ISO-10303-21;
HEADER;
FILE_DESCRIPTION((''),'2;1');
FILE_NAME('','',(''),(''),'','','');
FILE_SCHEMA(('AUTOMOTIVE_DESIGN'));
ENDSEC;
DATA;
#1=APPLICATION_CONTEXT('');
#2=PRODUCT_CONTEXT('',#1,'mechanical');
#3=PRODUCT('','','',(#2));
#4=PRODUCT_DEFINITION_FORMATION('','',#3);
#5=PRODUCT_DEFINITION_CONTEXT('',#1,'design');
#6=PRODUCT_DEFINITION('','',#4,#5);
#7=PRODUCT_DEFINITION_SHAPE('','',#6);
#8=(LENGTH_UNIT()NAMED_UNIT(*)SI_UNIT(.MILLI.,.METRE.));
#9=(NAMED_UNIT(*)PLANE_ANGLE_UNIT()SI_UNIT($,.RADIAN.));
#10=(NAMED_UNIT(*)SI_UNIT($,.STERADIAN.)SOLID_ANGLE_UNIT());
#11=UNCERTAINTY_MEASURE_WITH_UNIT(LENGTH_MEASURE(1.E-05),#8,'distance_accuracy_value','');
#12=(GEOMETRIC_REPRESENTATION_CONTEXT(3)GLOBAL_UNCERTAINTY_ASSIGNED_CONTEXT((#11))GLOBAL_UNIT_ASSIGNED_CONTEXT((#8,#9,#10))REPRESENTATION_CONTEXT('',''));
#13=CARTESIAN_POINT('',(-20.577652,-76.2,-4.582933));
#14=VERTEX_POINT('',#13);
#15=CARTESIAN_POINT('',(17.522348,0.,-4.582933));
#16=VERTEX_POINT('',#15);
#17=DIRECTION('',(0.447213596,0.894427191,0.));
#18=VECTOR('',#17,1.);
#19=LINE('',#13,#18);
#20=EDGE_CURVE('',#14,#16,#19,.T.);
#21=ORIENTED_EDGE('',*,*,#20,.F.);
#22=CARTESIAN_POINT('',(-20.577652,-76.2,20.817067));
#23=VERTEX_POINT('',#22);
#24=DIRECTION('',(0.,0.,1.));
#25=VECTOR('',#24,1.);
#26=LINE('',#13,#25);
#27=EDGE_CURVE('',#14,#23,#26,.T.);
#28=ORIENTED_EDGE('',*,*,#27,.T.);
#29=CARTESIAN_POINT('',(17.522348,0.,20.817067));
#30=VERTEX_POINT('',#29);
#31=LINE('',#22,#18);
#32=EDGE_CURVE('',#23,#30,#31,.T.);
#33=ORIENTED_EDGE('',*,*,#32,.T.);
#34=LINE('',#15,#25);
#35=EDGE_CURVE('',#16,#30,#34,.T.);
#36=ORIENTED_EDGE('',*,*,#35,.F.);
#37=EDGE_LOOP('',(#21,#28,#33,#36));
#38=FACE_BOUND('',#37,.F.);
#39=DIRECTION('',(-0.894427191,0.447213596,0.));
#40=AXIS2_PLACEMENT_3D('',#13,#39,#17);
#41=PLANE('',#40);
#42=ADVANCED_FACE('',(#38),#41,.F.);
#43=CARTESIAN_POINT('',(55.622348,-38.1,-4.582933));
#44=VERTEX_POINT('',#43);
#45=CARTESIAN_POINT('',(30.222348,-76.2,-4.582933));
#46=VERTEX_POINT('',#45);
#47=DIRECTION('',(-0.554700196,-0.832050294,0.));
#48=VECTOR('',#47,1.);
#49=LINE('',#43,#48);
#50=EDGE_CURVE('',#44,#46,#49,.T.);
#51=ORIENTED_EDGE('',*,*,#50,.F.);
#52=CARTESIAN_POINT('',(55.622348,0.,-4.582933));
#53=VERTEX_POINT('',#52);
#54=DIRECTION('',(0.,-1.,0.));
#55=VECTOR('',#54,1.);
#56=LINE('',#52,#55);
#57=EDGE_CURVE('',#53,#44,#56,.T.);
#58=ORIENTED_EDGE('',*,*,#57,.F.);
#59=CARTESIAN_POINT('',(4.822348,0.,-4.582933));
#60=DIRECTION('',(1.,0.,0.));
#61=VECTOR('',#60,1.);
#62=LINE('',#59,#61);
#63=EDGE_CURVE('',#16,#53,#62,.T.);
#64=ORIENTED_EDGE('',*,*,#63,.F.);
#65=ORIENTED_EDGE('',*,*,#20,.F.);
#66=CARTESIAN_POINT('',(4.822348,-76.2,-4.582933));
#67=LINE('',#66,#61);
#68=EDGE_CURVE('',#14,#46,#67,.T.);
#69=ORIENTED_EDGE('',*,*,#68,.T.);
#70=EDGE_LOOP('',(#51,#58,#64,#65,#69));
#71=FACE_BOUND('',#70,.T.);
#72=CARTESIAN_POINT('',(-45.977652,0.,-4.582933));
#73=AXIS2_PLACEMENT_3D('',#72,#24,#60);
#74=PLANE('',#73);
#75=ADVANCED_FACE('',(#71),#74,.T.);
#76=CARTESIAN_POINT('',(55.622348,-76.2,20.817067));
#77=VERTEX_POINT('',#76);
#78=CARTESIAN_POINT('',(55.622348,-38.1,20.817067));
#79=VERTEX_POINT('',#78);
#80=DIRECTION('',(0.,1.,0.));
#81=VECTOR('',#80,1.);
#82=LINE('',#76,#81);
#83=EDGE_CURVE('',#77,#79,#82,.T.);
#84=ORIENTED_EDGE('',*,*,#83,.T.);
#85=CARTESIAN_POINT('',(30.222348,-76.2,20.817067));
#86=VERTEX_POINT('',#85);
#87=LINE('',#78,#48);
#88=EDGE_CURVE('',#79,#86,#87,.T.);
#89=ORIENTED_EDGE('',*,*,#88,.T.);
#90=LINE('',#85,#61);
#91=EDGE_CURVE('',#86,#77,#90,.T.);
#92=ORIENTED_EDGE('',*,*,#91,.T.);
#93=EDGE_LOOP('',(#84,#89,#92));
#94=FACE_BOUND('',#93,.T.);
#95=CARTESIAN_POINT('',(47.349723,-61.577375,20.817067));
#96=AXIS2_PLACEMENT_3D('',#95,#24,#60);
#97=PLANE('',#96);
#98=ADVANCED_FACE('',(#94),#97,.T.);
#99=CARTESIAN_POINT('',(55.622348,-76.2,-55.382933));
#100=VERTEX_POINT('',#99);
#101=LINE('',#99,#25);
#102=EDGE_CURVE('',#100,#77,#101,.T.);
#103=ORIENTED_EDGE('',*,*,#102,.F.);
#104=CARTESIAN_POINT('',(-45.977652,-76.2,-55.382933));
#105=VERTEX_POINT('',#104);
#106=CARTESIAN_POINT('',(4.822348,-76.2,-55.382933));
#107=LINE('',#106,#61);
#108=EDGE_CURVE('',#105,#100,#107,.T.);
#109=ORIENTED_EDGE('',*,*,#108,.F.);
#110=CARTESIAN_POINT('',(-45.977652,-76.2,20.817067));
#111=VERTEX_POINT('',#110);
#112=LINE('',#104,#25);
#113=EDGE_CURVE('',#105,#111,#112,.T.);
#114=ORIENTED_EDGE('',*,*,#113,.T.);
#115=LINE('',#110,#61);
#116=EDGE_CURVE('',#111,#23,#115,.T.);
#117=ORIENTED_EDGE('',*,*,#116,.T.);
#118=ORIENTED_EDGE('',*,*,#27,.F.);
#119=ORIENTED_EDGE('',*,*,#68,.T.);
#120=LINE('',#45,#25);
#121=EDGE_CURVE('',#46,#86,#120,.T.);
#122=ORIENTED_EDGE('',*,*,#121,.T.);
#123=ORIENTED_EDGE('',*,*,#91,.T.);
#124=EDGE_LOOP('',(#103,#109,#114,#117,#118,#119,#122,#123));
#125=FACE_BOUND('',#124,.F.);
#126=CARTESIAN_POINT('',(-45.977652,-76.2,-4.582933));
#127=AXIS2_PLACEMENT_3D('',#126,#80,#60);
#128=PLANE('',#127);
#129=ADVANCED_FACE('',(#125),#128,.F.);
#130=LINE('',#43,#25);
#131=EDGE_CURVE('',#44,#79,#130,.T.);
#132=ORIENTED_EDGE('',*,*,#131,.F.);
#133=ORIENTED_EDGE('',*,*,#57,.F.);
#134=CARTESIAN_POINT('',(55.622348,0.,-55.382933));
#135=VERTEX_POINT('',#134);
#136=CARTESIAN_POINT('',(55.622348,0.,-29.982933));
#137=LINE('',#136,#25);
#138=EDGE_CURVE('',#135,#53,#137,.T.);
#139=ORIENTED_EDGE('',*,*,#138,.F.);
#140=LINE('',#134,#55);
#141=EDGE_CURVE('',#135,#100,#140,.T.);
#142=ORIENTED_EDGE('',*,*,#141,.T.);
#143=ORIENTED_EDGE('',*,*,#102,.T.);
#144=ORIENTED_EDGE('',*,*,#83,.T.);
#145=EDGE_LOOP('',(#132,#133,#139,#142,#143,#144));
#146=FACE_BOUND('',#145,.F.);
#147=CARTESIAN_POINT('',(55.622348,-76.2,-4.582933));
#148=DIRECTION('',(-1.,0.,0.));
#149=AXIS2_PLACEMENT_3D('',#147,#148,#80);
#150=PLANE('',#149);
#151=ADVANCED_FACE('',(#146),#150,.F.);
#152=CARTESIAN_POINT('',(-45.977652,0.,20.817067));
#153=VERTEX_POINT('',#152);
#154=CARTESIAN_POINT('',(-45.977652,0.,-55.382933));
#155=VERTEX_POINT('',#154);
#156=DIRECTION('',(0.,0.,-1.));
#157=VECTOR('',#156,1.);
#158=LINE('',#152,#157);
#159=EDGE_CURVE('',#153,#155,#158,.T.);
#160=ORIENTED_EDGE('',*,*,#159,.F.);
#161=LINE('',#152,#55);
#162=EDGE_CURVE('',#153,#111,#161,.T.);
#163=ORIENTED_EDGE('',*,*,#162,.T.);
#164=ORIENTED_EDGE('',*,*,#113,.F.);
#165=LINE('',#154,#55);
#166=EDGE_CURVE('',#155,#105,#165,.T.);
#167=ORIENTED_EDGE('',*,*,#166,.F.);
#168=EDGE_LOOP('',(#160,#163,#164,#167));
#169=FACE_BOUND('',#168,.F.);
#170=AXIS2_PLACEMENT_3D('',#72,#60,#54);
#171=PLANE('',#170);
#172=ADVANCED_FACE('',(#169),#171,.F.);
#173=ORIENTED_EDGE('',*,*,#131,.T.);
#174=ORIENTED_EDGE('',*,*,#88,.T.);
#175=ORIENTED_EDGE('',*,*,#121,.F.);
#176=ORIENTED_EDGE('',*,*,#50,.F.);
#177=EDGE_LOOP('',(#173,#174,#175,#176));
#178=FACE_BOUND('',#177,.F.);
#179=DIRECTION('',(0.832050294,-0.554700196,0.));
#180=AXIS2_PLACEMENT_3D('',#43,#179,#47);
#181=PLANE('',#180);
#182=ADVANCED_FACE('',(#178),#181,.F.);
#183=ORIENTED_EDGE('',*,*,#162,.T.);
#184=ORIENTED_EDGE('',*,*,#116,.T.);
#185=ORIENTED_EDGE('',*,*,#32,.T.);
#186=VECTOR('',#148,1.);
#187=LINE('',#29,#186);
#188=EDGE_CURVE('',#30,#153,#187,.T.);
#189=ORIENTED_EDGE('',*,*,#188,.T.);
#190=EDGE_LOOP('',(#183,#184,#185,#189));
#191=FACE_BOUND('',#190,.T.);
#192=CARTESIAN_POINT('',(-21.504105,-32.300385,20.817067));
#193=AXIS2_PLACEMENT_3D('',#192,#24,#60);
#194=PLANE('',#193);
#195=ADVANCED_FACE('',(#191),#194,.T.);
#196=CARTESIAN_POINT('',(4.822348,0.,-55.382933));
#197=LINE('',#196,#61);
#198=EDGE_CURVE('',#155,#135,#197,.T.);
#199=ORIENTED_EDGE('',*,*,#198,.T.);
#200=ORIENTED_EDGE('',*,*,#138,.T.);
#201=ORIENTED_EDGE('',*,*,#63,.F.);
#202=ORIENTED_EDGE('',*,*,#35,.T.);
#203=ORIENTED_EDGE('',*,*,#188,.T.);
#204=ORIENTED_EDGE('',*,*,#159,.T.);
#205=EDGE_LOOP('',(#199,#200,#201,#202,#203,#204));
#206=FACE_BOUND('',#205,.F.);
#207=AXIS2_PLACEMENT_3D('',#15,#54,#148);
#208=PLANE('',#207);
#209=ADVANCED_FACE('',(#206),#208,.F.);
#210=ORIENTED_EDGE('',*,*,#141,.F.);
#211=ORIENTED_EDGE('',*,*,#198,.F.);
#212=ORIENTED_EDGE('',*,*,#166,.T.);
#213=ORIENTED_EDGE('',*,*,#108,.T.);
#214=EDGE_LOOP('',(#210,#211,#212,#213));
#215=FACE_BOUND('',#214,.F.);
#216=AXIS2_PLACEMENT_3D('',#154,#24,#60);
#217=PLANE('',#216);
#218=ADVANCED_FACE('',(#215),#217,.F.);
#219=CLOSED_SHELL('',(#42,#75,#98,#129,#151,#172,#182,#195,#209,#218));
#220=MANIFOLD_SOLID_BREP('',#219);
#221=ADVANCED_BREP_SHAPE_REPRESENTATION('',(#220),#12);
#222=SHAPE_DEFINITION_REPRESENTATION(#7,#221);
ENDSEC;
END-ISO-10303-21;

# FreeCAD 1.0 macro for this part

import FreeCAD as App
import Part
import Sketcher

V = App.Vector
Q = App.Units.Quantity


def add_polygon(sketch, points):
    """Adds a closed chain of lines whose ends are joined by coincident constraints."""
    first, n = sketch.GeometryCount, len(points)
    for a, b in zip(points, points[1:] + points[:1]):
        sketch.addGeometry(Part.LineSegment(App.Vector(*a, 0), App.Vector(*b, 0)), False)
    for i in range(n):
        sketch.addConstraint(Sketcher.Constraint("Coincident", first + i, 2, first + (i + 1) % n, 1))

doc = App.newDocument("Part")
body = doc.addObject("PartDesign::Body", "Body")

sketch1 = body.newObject("Sketcher::SketchObject", "Sketch")
sketch1.AttachmentSupport = (doc.getObject("XZ_Plane"), [""])
sketch1.MapMode = "FlatFace"
add_polygon(sketch1, [(-46, -5), (-46, -55), (56, -55), (56, -5)])
sketch1.addConstraint([
    Sketcher.Constraint("Vertical", 0),
    Sketcher.Constraint("Horizontal", 1),
    Sketcher.Constraint("Vertical", 2),
    Sketcher.Constraint("Horizontal", 3),
    Sketcher.Constraint("DistanceX", 1, 1, 1, 2, Q("4 in")),
    Sketcher.Constraint("DistanceY", 0, 2, 0, 1, Q("2 in")),
    Sketcher.Constraint("DistanceX", -1, 1, 1, 2, Q("55.622348 mm")),
    Sketcher.Constraint("DistanceY", 0, 2, -1, 1, Q("55.382933 mm")),
])
pad1 = body.newObject("PartDesign::Pad", "Pad")
pad1.Profile = sketch1
pad1.Length = Q("3 in")

sketch2 = body.newObject("Sketcher::SketchObject", "Sketch001")
sketch2.AttachmentSupport = (doc.getObject("XY_Plane"), [""])
sketch2.MapMode = "FlatFace"
sketch2.AttachmentOffset = App.Placement(V(0, 0, -4.582933), App.Rotation())
add_polygon(sketch2, [(30, -76), (56, -76), (56, -38)])
sketch2.addConstraint([
    Sketcher.Constraint("Horizontal", 0),
    Sketcher.Constraint("Vertical", 1),
    Sketcher.Constraint("DistanceX", 0, 1, 0, 2, Q("1 in")),
    Sketcher.Constraint("DistanceY", 1, 1, 1, 2, Q("1.5 in")),
    Sketcher.Constraint("DistanceY", 0, 2, -1, 1, Q("3 in")),
    Sketcher.Constraint("DistanceX", -1, 1, 0, 2, Q("55.622348 mm")),
])
pad2 = body.newObject("PartDesign::Pad", "Pad001")
pad2.Profile = sketch2
pad2.Length = Q("1 in")

sketch3 = body.newObject("Sketcher::SketchObject", "Sketch002")
sketch3.AttachmentSupport = (doc.getObject("XY_Plane"), [""])
sketch3.MapMode = "FlatFace"
sketch3.AttachmentOffset = App.Placement(V(0, 0, -4.582933), App.Rotation())
add_polygon(sketch3, [(-46, 0), (-46, -76), (-21, -76), (18, 0)])
sketch3.addConstraint([
    Sketcher.Constraint("Vertical", 0),
    Sketcher.Constraint("Horizontal", 1),
    Sketcher.Constraint("Horizontal", 3),
    Sketcher.Constraint("PointOnObject", 2, 2, -1),
    Sketcher.Constraint("DistanceX", 1, 1, 1, 2, Q("1 in")),
    Sketcher.Constraint("DistanceY", 0, 2, 0, 1, Q("3 in")),
    Sketcher.Constraint("DistanceX", 3, 2, 3, 1, Q("2.5 in")),
    Sketcher.Constraint("DistanceX", -1, 1, 2, 2, Q("17.522348 mm")),
])
pad3 = body.newObject("PartDesign::Pad", "Pad002")
pad3.Profile = sketch3
pad3.Length = Q("1 in")

doc.recompute()
